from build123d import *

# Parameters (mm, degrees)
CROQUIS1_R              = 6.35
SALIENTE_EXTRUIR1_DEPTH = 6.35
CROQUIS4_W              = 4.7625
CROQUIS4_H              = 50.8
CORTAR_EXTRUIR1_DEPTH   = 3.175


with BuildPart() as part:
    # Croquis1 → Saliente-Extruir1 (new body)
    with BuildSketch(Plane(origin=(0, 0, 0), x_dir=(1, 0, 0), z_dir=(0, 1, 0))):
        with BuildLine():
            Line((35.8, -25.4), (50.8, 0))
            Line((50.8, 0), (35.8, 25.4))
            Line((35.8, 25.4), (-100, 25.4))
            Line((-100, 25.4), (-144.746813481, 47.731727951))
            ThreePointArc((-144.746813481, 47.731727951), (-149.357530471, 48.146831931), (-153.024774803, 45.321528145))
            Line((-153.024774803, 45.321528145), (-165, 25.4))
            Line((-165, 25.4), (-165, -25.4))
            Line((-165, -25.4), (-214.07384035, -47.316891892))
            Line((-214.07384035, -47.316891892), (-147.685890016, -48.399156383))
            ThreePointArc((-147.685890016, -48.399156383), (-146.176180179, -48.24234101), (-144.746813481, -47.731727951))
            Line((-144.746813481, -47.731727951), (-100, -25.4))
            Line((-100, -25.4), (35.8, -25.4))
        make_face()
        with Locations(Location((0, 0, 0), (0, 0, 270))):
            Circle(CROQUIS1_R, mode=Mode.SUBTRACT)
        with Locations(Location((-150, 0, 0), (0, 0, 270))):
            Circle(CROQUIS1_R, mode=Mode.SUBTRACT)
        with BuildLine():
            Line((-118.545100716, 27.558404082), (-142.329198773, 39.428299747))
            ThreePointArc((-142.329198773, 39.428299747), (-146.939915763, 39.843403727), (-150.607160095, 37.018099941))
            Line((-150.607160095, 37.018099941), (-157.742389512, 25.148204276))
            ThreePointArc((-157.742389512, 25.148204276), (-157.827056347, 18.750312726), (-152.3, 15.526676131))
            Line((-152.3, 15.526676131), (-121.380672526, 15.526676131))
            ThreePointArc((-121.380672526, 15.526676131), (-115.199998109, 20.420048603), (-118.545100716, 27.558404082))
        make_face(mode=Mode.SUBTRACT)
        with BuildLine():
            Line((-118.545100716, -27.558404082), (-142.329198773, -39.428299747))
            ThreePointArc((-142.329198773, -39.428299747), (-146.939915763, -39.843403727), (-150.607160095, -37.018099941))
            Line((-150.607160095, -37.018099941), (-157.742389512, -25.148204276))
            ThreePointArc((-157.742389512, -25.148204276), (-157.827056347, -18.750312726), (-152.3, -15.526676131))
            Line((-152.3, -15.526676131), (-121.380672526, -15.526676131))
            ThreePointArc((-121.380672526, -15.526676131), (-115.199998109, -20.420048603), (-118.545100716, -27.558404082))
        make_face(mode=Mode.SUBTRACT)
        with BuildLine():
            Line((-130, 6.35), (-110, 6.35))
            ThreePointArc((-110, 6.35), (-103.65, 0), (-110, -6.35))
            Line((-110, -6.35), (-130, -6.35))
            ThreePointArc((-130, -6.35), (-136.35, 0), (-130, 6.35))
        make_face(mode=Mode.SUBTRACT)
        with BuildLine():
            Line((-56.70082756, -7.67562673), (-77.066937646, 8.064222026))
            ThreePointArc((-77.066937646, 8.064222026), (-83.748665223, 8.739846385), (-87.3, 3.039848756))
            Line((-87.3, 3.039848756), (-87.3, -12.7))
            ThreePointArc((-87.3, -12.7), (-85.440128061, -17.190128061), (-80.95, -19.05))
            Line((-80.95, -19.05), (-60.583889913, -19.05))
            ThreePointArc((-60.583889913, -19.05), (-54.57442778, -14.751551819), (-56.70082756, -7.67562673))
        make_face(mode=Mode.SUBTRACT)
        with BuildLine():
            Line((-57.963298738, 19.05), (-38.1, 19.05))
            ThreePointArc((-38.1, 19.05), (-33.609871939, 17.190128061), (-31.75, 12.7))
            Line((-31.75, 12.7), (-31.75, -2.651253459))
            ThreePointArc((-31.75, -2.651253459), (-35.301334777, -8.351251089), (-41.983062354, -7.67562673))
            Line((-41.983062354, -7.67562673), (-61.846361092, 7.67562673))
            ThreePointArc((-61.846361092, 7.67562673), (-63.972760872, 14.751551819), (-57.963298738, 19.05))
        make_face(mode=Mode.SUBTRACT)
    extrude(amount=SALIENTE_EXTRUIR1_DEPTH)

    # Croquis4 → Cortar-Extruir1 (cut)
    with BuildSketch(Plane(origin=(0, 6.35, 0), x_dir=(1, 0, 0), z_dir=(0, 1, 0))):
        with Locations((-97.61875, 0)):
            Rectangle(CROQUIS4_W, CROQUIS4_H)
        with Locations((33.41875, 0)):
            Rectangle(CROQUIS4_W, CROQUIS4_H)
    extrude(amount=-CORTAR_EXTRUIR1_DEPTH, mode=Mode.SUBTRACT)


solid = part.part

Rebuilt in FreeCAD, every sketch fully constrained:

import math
import FreeCAD as App
import Part
import Sketcher

V = App.Vector
Q = App.Units.Quantity

doc = App.newDocument("Part")
body = doc.addObject("PartDesign::Body", "Body")

# Sketch on XZ plane
sketch1 = body.newObject("Sketcher::SketchObject", "Sketch")
sketch1.AttachmentSupport = (doc.getObject("XZ_Plane"), [""])
sketch1.MapMode = "FlatFace"
sketch1.addGeometry([
    Part.LineSegment(V(35.8, 25.4, 0), V(50.8, 0, 0)),  # 0
    Part.LineSegment(V(50.8, 0, 0), V(35.8, -25.4, 0)),  # 1
    Part.LineSegment(V(35.8, -25.4, 0), V(-100, -25.4, 0)),  # 2
    Part.LineSegment(V(-100, -25.4, 0), V(-144.7, -47.7, 0)),  # 3
    Part.ArcOfCircle(Part.Circle(V(-147.6, -42.1, 0), V(0, 0, 1), 6.3), math.radians(-149), math.radians(-63)),  # 4
    Part.LineSegment(V(-153, -45.3, 0), V(-165, -25.4, 0)),  # 5
    Part.LineSegment(V(-165, -25.4, 0), V(-165, 25.4, 0)),  # 6
    Part.LineSegment(V(-165, 25.4, 0), V(-214.1, 47.3, 0)),  # 7
    Part.LineSegment(V(-214.1, 47.3, 0), V(-147.7, 48.4, 0)),  # 8
    Part.ArcOfCircle(Part.Circle(V(-147.6, 42, 0), V(0, 0, 1), 6.4), math.radians(63), math.radians(91)),  # 9
    Part.LineSegment(V(-144.7, 47.7, 0), V(-100, 25.4, 0)),  # 10
    Part.LineSegment(V(-100, 25.4, 0), V(35.8, 25.4, 0)),  # 11
    Part.ArcOfCircle(Part.Circle(V(-121.4, 21.9, 0), V(0, 0, 1), 6.3), math.radians(-90), math.radians(63)),  # 12
    Part.LineSegment(V(-118.5, 27.6, 0), V(-142.3, 39.4, 0)),  # 13
    Part.ArcOfCircle(Part.Circle(V(-145.2, 33.7, 0), V(0, 0, 1), 6.3), math.radians(63), math.radians(149)),  # 14
    Part.LineSegment(V(-150.6, 37, 0), V(-157.7, 25.1, 0)),  # 15
    Part.ArcOfCircle(Part.Circle(V(-152.3, 21.9, 0), V(0, 0, 1), 6.3), math.radians(149), math.radians(270)),  # 16
    Part.LineSegment(V(-152.3, 15.5, 0), V(-121.4, 15.5, 0)),  # 17
    Part.LineSegment(V(-77.1, -8.1, 0), V(-56.7, 7.7, 0)),  # 18
    Part.ArcOfCircle(Part.Circle(V(-60.6, 12.7, 0), V(0, 0, 1), 6.3), math.radians(-52), math.radians(90)),  # 19
    Part.LineSegment(V(-60.6, 19.1, 0), V(-81, 19.1, 0)),  # 20
    Part.ArcOfCircle(Part.Circle(V(-81, 12.7, 0), V(0, 0, 1), 6.3), math.radians(90), math.radians(180)),  # 21
    Part.LineSegment(V(-87.3, 12.7, 0), V(-87.3, -3, 0)),  # 22
    Part.ArcOfCircle(Part.Circle(V(-81, -3, 0), V(0, 0, 1), 6.3), math.radians(180), math.radians(308)),  # 23
    Part.Circle(V(-150, 0, 0), V(0, 0, 1), 6.3),  # 24
    Part.ArcOfCircle(Part.Circle(V(-130, 0, 0), V(0, 0, 1), 6.3), math.radians(90), math.radians(270)),  # 25
    Part.LineSegment(V(-130, -6.3, 0), V(-110, -6.3, 0)),  # 26
    Part.ArcOfCircle(Part.Circle(V(-110, 0, 0), V(0, 0, 1), 6.3), math.radians(-90), math.radians(90)),  # 27
    Part.LineSegment(V(-110, 6.3, 0), V(-130, 6.3, 0)),  # 28
    Part.LineSegment(V(-142.3, -39.4, 0), V(-118.5, -27.6, 0)),  # 29
    Part.ArcOfCircle(Part.Circle(V(-121.4, -21.9, 0), V(0, 0, 1), 6.3), math.radians(-63), math.radians(90)),  # 30
    Part.LineSegment(V(-121.4, -15.5, 0), V(-152.3, -15.5, 0)),  # 31
    Part.ArcOfCircle(Part.Circle(V(-152.3, -21.9, 0), V(0, 0, 1), 6.3), math.radians(90), math.radians(211)),  # 32
    Part.LineSegment(V(-157.7, -25.1, 0), V(-150.6, -37, 0)),  # 33
    Part.ArcOfCircle(Part.Circle(V(-145.2, -33.7, 0), V(0, 0, 1), 6.3), math.radians(-149), math.radians(-63)),  # 34
    Part.ArcOfCircle(Part.Circle(V(-58, -12.7, 0), V(0, 0, 1), 6.3), math.radians(128), math.radians(270)),  # 35
    Part.LineSegment(V(-58, -19.1, 0), V(-38.1, -19.1, 0)),  # 36
    Part.ArcOfCircle(Part.Circle(V(-38.1, -12.7, 0), V(0, 0, 1), 6.3), math.radians(-90), math.radians(0)),  # 37
    Part.LineSegment(V(-31.8, -12.7, 0), V(-31.8, 2.7, 0)),  # 38
    Part.ArcOfCircle(Part.Circle(V(-38.1, 2.7, 0), V(0, 0, 1), 6.3), math.radians(0), math.radians(128)),  # 39
    Part.LineSegment(V(-42, 7.7, 0), V(-61.8, -7.7, 0)),  # 40
    Part.Circle(V(0, 0, 0), V(0, 0, 1), 6.3),  # 41
], False)
sketch1.addConstraint([
    Sketcher.Constraint("Coincident", 0, 2, 1, 1),
    Sketcher.Constraint("Coincident", 1, 2, 2, 1),
    Sketcher.Constraint("Coincident", 2, 2, 3, 1),
    Sketcher.Constraint("Tangent", 3, 2, 4, 2),
    Sketcher.Constraint("Tangent", 4, 1, 5, 1),
    Sketcher.Constraint("Coincident", 5, 2, 6, 1),
    Sketcher.Constraint("Coincident", 6, 2, 7, 1),
    Sketcher.Constraint("Coincident", 7, 2, 8, 1),
    Sketcher.Constraint("Tangent", 8, 2, 9, 2),
    Sketcher.Constraint("Tangent", 9, 1, 10, 1),
    Sketcher.Constraint("Coincident", 10, 2, 11, 1),
    Sketcher.Constraint("Coincident", 11, 2, 0, 1),
    Sketcher.Constraint("Tangent", 12, 2, 13, 1),
    Sketcher.Constraint("Tangent", 13, 2, 14, 1),
    Sketcher.Constraint("Tangent", 14, 2, 15, 1),
    Sketcher.Constraint("Tangent", 15, 2, 16, 1),
    Sketcher.Constraint("Tangent", 16, 2, 17, 1),
    Sketcher.Constraint("Tangent", 17, 2, 12, 1),
    Sketcher.Constraint("Tangent", 18, 2, 19, 1),
    Sketcher.Constraint("Tangent", 19, 2, 20, 1),
    Sketcher.Constraint("Tangent", 20, 2, 21, 1),
    Sketcher.Constraint("Tangent", 21, 2, 22, 1),
    Sketcher.Constraint("Tangent", 22, 2, 23, 1),
    Sketcher.Constraint("Tangent", 23, 2, 18, 1),
    Sketcher.Constraint("Tangent", 25, 2, 26, 1),
    Sketcher.Constraint("Tangent", 26, 2, 27, 1),
    Sketcher.Constraint("Tangent", 27, 2, 28, 1),
    Sketcher.Constraint("Tangent", 28, 2, 25, 1),
    Sketcher.Constraint("Tangent", 29, 2, 30, 1),
    Sketcher.Constraint("Tangent", 30, 2, 31, 1),
    Sketcher.Constraint("Tangent", 31, 2, 32, 1),
    Sketcher.Constraint("Tangent", 32, 2, 33, 1),
    Sketcher.Constraint("Tangent", 33, 2, 34, 1),
    Sketcher.Constraint("Tangent", 34, 2, 29, 1),
    Sketcher.Constraint("Tangent", 35, 2, 36, 1),
    Sketcher.Constraint("Tangent", 36, 2, 37, 1),
    Sketcher.Constraint("Tangent", 37, 2, 38, 1),
    Sketcher.Constraint("Tangent", 38, 2, 39, 1),
    Sketcher.Constraint("Tangent", 39, 2, 40, 1),
    Sketcher.Constraint("Tangent", 40, 2, 35, 1),
    Sketcher.Constraint("Horizontal", 2),
    Sketcher.Constraint("Vertical", 6),
    Sketcher.Constraint("Horizontal", 11),
    Sketcher.Constraint("Horizontal", 17),
    Sketcher.Constraint("Horizontal", 20),
    Sketcher.Constraint("Vertical", 22),
    Sketcher.Constraint("Horizontal", 26),
    Sketcher.Constraint("Horizontal", 28),
    Sketcher.Constraint("Horizontal", 31),
    Sketcher.Constraint("Horizontal", 36),
    Sketcher.Constraint("Vertical", 38),
    Sketcher.Constraint("Coincident", 41, 3, -1, 1),
    Sketcher.Constraint("Equal", 4, 9),
    Sketcher.Constraint("Equal", 9, 12),
    Sketcher.Constraint("Equal", 12, 14),
    Sketcher.Constraint("Equal", 14, 16),
    Sketcher.Constraint("Equal", 16, 19),
    Sketcher.Constraint("Equal", 19, 21),
    Sketcher.Constraint("Equal", 21, 23),
    Sketcher.Constraint("Equal", 23, 24),
    Sketcher.Constraint("Equal", 24, 25),
    Sketcher.Constraint("Equal", 27, 30),
    Sketcher.Constraint("Equal", 30, 32),
    Sketcher.Constraint("Equal", 32, 34),
    Sketcher.Constraint("Equal", 34, 35),
    Sketcher.Constraint("Equal", 35, 37),
    Sketcher.Constraint("Equal", 37, 39),
    Sketcher.Constraint("Equal", 39, 41),
    Sketcher.Constraint("Symmetric", 4, 3, 9, 3, -1),
    Sketcher.Constraint("Symmetric", 12, 3, 30, 3, -1),
    Sketcher.Constraint("Symmetric", 14, 3, 34, 3, -1),
    Sketcher.Constraint("Symmetric", 2, 2, 10, 2, -1),
    Sketcher.Constraint("PointOnObject", 24, 3, -1),
    Sketcher.Constraint("PointOnObject", 25, 3, -1),
    Sketcher.Constraint("PointOnObject", 0, 2, -1),
    Sketcher.Constraint("Parallel", 10, 13),
    Sketcher.Constraint("Parallel", 5, 33),
    Sketcher.Constraint("Parallel", 18, 40),
    Sketcher.Constraint("Horizontal", 2, 2, 5, 2),
    Sketcher.Constraint("Horizontal", 6, 2, 10, 2),
    Sketcher.Constraint("Horizontal", 18, 2, 39, 2),
    Sketcher.Constraint("Vertical", 16, 3, 32, 3),
    Sketcher.Constraint("Vertical", 1, 2, 11, 2),
    Sketcher.Constraint("Diameter", 24, Q("0.5 in")),
    Sketcher.Constraint("DistanceY", 6, 1, 6, 2, Q("2 in")),
    Sketcher.Constraint("DistanceX", -1, 1, 0, 2, Q("2 in")),
    Sketcher.Constraint("DistanceY", 35, 3, 19, 3, Q("1 in")),
    Sketcher.Constraint("DistanceY", -1, 1, 19, 3, Q("0.5 in")),
    Sketcher.Constraint("DistanceX", 37, 3, -1, 1, Q("1.5 in")),
    Sketcher.Constraint("DistanceX", 5, 2, 32, 3, Q("0.5 in")),
    Sketcher.Constraint("DistanceX", 15, 2, 9, 3, Q("0.4000002 in")),
    Sketcher.Constraint("DistanceX", 10, 2, 21, 2, Q("0.5 in")),
    Sketcher.Constraint("DistanceX", 2, 2, 2, 1, Q("135.8 mm")),
    Sketcher.Constraint("DistanceX", 26, 1, 26, 2, Q("20 mm")),
    Sketcher.Constraint("DistanceX", 36, 1, 36, 2, Q("19.863299 mm")),
    Sketcher.Constraint("Distance", 15, Q("13.849402 mm")),
    Sketcher.Constraint("DistanceX", 20, 2, 20, 1, Q("20.36611 mm")),
    Sketcher.Constraint("DistanceY", 4, 3, -1, 1, Q("42.05 mm")),
    Sketcher.Constraint("DistanceX", 16, 3, -1, 1, Q("152.3 mm")),
    Sketcher.Constraint("DistanceX", 21, 3, -1, 1, Q("80.95 mm")),
    Sketcher.Constraint("DistanceX", 24, 3, -1, 1, Q("150 mm")),
    Sketcher.Constraint("DistanceX", 25, 3, -1, 1, Q("130 mm")),
    Sketcher.Constraint("DistanceY", -1, 1, 13, 2, Q("39.4283 mm")),
    Sketcher.Constraint("Distance", 8, Q("66.396771 mm")),
    Sketcher.Constraint("DistanceX", 7, 2, -1, 1, Q("214.07384 mm")),
])
pad1 = body.newObject("PartDesign::Pad", "Pad")
pad1.Profile = sketch1
pad1.Length = Q("0.25 in")
pad1.Reversed = True

# Sketch on XZ plane
sketch2 = body.newObject("Sketcher::SketchObject", "Sketch001")
sketch2.AttachmentSupport = (doc.getObject("XZ_Plane"), [""])
sketch2.MapMode = "FlatFace"
sketch2.AttachmentOffset = App.Placement(V(0, 0, -0.25 * 25.4), App.Rotation())
sketch2.addGeometry([
    Part.LineSegment(V(-100, -25.4, 0), V(-100, 25.4, 0)),  # 0
    Part.LineSegment(V(-100, 25.4, 0), V(-95.2, 25.4, 0)),  # 1
    Part.LineSegment(V(-95.2, 25.4, 0), V(-95.2, -25.4, 0)),  # 2
    Part.LineSegment(V(-95.2, -25.4, 0), V(-100, -25.4, 0)),  # 3
    Part.LineSegment(V(31, -25.4, 0), V(31, 25.4, 0)),  # 4
    Part.LineSegment(V(31, 25.4, 0), V(35.8, 25.4, 0)),  # 5
    Part.LineSegment(V(35.8, 25.4, 0), V(35.8, -25.4, 0)),  # 6
    Part.LineSegment(V(35.8, -25.4, 0), V(31, -25.4, 0)),  # 7
], False)
sketch2.addConstraint([
    Sketcher.Constraint("Coincident", 0, 2, 1, 1),
    Sketcher.Constraint("Coincident", 1, 2, 2, 1),
    Sketcher.Constraint("Coincident", 2, 2, 3, 1),
    Sketcher.Constraint("Coincident", 3, 2, 0, 1),
    Sketcher.Constraint("Coincident", 4, 2, 5, 1),
    Sketcher.Constraint("Coincident", 5, 2, 6, 1),
    Sketcher.Constraint("Coincident", 6, 2, 7, 1),
    Sketcher.Constraint("Coincident", 7, 2, 4, 1),
    Sketcher.Constraint("Vertical", 0),
    Sketcher.Constraint("Horizontal", 1),
    Sketcher.Constraint("Vertical", 2),
    Sketcher.Constraint("Horizontal", 3),
    Sketcher.Constraint("Vertical", 4),
    Sketcher.Constraint("Horizontal", 5),
    Sketcher.Constraint("Vertical", 6),
    Sketcher.Constraint("Horizontal", 7),
    Sketcher.Constraint("Horizontal", 1, 2, 4, 2),
    Sketcher.Constraint("Horizontal", 3, 2, 6, 2),
    Sketcher.Constraint("Equal", 3, 5),
    Sketcher.Constraint("DistanceY", 0, 1, 0, 2, Q("2 in")),
    Sketcher.Constraint("DistanceY", -1, 1, 0, 2, Q("1 in")),
    Sketcher.Constraint("DistanceX", 1, 1, 1, 2, Q("0.1875 in")),
    Sketcher.Constraint("DistanceX", 0, 2, -1, 1, Q("100 mm")),
    Sketcher.Constraint("DistanceX", -1, 1, 4, 2, Q("31.0375 mm")),
])
pocket1 = body.newObject("PartDesign::Pocket", "Pocket")
pocket1.Profile = sketch2
pocket1.Length = Q("0.125 in")
pocket1.Reversed = True

doc.recompute()
